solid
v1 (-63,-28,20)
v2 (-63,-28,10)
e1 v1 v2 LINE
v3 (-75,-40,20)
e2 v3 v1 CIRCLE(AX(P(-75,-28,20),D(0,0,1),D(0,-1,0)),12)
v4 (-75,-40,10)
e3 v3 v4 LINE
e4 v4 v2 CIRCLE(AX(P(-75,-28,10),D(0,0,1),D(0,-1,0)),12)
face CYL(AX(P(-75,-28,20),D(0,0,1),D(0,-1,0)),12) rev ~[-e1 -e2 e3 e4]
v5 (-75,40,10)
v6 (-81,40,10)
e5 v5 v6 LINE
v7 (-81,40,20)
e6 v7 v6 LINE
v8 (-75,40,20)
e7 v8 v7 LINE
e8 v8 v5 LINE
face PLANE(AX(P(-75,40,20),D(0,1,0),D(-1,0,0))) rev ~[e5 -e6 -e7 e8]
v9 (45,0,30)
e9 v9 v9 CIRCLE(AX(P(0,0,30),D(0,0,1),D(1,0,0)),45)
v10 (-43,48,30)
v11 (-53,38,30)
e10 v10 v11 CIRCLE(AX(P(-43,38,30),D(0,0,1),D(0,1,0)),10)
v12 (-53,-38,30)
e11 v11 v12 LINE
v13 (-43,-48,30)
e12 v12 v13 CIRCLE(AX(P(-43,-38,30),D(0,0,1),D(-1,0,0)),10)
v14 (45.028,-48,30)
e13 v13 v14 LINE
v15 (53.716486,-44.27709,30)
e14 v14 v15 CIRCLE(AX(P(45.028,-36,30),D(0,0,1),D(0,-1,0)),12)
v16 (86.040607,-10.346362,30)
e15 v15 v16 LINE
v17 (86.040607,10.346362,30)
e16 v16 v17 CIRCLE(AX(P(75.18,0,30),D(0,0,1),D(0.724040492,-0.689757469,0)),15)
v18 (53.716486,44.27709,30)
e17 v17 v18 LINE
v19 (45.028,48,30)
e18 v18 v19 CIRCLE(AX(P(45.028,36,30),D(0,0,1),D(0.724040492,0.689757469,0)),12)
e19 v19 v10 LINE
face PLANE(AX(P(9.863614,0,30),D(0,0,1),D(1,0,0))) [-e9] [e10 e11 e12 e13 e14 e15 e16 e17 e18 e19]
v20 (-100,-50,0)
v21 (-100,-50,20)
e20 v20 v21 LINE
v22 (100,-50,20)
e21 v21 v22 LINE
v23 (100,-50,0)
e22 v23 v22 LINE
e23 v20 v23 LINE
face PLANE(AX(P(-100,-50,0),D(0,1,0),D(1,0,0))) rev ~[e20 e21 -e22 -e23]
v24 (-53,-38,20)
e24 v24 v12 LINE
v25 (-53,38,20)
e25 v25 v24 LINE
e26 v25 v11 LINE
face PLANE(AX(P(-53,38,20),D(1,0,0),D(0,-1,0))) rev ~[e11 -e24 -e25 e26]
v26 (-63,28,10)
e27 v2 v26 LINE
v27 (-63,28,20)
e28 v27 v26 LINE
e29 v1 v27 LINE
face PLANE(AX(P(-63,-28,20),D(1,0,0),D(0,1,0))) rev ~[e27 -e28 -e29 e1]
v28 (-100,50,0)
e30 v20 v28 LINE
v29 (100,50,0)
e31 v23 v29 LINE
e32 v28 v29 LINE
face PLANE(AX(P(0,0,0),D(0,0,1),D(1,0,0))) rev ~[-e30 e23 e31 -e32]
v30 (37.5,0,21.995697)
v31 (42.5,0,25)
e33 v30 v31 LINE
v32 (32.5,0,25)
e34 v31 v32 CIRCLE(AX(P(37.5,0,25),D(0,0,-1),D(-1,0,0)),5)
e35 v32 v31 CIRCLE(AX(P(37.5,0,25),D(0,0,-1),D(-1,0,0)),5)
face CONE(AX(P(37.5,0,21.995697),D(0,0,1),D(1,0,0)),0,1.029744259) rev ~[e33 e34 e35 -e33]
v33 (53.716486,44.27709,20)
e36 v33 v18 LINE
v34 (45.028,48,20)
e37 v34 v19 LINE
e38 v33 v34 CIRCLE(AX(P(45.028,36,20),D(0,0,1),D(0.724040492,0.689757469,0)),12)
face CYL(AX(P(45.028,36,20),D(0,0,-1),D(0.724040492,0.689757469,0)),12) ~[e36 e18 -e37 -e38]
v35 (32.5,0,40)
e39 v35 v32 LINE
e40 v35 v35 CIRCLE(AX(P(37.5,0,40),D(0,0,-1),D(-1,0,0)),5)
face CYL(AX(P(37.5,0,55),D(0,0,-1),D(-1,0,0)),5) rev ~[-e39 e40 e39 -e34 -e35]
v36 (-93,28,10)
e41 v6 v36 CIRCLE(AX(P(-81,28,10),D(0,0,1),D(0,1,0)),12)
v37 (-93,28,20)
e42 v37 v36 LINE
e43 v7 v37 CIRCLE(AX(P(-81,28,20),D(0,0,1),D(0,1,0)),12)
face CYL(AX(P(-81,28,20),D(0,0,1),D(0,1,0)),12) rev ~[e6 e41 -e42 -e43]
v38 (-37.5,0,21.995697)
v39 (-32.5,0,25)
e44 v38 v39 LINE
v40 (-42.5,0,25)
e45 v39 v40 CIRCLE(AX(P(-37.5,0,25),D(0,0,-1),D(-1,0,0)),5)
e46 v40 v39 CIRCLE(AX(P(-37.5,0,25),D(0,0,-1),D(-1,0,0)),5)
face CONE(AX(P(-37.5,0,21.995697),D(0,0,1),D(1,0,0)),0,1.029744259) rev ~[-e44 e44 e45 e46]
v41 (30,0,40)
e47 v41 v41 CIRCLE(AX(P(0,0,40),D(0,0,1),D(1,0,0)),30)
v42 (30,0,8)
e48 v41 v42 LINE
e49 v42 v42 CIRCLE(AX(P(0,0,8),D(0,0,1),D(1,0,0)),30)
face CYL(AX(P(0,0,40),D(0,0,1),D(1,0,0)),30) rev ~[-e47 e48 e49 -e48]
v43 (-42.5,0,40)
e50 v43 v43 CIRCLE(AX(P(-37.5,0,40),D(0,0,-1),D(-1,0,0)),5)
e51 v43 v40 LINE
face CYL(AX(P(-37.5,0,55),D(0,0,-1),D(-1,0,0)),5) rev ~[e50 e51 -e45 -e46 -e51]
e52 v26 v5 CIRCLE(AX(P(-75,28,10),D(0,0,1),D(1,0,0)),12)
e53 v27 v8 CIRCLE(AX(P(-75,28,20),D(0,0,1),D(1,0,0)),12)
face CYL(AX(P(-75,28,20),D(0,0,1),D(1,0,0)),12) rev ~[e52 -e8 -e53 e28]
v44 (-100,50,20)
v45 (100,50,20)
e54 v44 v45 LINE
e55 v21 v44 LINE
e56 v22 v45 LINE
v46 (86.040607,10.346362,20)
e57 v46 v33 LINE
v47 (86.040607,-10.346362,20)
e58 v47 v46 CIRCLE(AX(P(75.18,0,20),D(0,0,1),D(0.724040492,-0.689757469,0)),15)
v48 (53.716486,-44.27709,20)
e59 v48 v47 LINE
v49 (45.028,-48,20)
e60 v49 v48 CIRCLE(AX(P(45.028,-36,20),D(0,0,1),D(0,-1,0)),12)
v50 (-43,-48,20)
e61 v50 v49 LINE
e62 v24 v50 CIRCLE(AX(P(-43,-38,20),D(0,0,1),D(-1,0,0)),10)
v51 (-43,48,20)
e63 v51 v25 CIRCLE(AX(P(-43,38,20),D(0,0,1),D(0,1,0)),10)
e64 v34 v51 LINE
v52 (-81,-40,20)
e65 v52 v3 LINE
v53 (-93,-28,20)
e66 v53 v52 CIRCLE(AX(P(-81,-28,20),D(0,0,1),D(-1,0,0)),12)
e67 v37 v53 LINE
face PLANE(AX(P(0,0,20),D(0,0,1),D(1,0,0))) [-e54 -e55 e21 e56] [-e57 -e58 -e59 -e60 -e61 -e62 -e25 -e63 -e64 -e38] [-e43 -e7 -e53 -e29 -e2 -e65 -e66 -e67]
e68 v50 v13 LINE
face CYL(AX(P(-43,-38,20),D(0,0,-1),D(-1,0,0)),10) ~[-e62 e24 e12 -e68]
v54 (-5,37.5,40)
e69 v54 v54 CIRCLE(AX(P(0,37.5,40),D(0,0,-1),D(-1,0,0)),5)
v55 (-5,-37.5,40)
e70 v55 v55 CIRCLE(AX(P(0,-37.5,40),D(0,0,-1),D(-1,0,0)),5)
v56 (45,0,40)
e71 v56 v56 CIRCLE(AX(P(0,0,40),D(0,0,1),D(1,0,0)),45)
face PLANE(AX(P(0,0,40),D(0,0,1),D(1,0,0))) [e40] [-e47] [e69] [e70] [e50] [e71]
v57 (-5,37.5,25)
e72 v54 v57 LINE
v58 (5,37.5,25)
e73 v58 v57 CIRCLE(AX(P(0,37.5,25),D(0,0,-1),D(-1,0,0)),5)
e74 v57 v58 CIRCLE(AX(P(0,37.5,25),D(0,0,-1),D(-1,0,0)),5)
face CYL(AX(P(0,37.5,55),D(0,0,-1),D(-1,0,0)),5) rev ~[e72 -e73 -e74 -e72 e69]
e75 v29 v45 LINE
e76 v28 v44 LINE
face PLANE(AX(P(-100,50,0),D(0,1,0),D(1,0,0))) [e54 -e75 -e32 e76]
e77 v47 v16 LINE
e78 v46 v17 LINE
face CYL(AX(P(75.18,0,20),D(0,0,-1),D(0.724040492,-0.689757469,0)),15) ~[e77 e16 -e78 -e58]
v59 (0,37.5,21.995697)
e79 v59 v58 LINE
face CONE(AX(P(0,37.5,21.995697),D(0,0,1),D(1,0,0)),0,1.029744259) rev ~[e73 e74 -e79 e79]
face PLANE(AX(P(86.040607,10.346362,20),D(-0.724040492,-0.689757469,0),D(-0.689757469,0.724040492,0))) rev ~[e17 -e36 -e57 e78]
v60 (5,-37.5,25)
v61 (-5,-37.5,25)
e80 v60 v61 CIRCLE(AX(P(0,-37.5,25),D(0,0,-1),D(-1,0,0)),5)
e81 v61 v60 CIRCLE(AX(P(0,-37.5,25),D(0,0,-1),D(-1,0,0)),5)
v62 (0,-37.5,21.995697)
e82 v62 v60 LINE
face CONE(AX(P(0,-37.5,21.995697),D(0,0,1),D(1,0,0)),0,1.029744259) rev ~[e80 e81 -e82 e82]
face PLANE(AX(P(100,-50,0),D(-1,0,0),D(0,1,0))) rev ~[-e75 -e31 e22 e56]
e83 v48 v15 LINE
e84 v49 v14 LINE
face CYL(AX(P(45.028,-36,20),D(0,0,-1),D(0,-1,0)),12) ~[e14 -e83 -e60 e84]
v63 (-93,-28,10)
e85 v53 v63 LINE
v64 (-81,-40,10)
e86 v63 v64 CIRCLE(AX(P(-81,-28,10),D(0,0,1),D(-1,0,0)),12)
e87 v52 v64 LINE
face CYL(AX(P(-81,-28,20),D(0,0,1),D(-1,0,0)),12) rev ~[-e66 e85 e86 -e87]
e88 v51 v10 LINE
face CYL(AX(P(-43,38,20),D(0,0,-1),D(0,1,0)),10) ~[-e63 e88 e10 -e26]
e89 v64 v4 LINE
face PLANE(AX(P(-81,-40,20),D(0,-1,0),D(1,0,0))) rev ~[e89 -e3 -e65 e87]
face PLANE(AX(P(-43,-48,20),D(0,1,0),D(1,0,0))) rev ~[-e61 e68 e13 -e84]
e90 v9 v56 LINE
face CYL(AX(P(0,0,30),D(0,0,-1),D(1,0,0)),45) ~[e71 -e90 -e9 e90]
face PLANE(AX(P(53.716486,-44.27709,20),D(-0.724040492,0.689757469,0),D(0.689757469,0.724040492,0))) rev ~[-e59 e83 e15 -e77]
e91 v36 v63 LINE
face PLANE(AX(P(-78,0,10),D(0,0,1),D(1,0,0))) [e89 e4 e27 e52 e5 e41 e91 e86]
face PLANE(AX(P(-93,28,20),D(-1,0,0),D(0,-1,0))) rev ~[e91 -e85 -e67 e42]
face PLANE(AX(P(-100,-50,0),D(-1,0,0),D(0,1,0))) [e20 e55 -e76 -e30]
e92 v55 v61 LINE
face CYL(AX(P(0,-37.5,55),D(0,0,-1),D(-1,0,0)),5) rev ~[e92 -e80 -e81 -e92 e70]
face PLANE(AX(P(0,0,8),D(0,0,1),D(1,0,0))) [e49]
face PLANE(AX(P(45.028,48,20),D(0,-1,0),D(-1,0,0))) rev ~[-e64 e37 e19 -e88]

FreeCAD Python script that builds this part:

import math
import FreeCAD as App
import Part
import Sketcher
Q = App.Units.Quantity

doc = App.newDocument("Part")
params = doc.addObject("Spreadsheet::Sheet", "Params")
for row, (alias, value) in enumerate([
    ("sketch1_width", "200 mm"),
    ("sketch1_height", "100 mm"),
    ("pad1_length", "20 mm"),
    ("sketch2_radius", "12 mm"),
    ("sketch2_width", "6 mm"),
    ("sketch2_height", "56 mm"),
    ("pocket1_length", "10 mm"),
    ("sketch3_radius", "10 mm"),
    ("sketch3_radius2", "12 mm"),
    ("sketch3_radius3", "15 mm"),
    ("sketch3_height", "76 mm"),
    ("pad2_length", "10 mm"),
    ("sketch4_diameter", "90 mm"),
    ("pad3_length", "10 mm"),
    ("sketch5_diameter", "60 mm"),
    ("pocket2_length", "32 mm"),
    ("sketch6_diameter", "10 mm"),
    ("hole_diameter", "10 mm"),
    ("hole_depth", "15 mm"),
], start=1):
    params.set(f"A{row}", alias)
    params.set(f"B{row}", "=" + value)
    params.setAlias(f"B{row}", alias)

body = doc.addObject("PartDesign::Body", "Body")

# Sketch on XY plane
sketch1 = body.newObject("Sketcher::SketchObject", "Sketch")
sketch1.AttachmentSupport = (doc.getObject("XY_Plane"), [""])
sketch1.MapMode = "FlatFace"
sketch1.addGeometry([
    Part.LineSegment(App.Vector(-100, 50, 0), App.Vector(-100, -50, 0)),
    Part.LineSegment(App.Vector(-100, -50, 0), App.Vector(100, -50, 0)),
    Part.LineSegment(App.Vector(100, -50, 0), App.Vector(100, 50, 0)),
    Part.LineSegment(App.Vector(100, 50, 0), App.Vector(-100, 50, 0)),
], False)
sketch1.addConstraint([
    Sketcher.Constraint("Coincident", 0, 2, 1, 1),
    Sketcher.Constraint("Coincident", 1, 2, 2, 1),
    Sketcher.Constraint("Coincident", 2, 2, 3, 1),
    Sketcher.Constraint("Coincident", 3, 2, 0, 1),
    Sketcher.Constraint("Vertical", 0),
    Sketcher.Constraint("Horizontal", 1),
    Sketcher.Constraint("Vertical", 2),
    Sketcher.Constraint("Horizontal", 3),
    Sketcher.Constraint("Symmetric", 0, 2, 2, 2, -1, 1),
    Sketcher.Constraint("DistanceX", 1, 1, 1, 2, Q("200 mm")),
    Sketcher.Constraint("DistanceY", 0, 2, 0, 1, Q("100 mm")),
])
sketch1.setExpression("Constraints[9]", "Params.sketch1_width")
sketch1.setExpression("Constraints[10]", "Params.sketch1_height")
pad1 = body.newObject("PartDesign::Pad", "Pad")
pad1.Profile = sketch1
pad1.setExpression("Length", "Params.pad1_length")

# Sketch on XY plane
sketch2 = body.newObject("Sketcher::SketchObject", "Sketch001")
sketch2.AttachmentSupport = (doc.getObject("XY_Plane"), [""])
sketch2.MapMode = "FlatFace"
sketch2.AttachmentOffset = App.Placement(App.Vector(0, 0, 20), App.Rotation())
sketch2.addGeometry([
    Part.LineSegment(App.Vector(-75, 40, 0), App.Vector(-81, 40, 0)),  # 0
    Part.ArcOfCircle(Part.Circle(App.Vector(-81, 28, 0), App.Vector(0, 0, 1), 12), math.radians(90), math.radians(180)),  # 1
    Part.LineSegment(App.Vector(-93, 28, 0), App.Vector(-93, -28, 0)),  # 2
    Part.ArcOfCircle(Part.Circle(App.Vector(-81, -28, 0), App.Vector(0, 0, 1), 12), math.radians(180), math.radians(270)),  # 3
    Part.LineSegment(App.Vector(-81, -40, 0), App.Vector(-75, -40, 0)),  # 4
    Part.ArcOfCircle(Part.Circle(App.Vector(-75, -28, 0), App.Vector(0, 0, 1), 12), math.radians(-90), math.radians(0)),  # 5
    Part.LineSegment(App.Vector(-63, -28, 0), App.Vector(-63, 28, 0)),  # 6
    Part.ArcOfCircle(Part.Circle(App.Vector(-75, 28, 0), App.Vector(0, 0, 1), 12), math.radians(0), math.radians(90)),  # 7
], False)
sketch2.addConstraint([
    Sketcher.Constraint("Tangent", 0, 2, 1, 1),
    Sketcher.Constraint("Tangent", 1, 2, 2, 1),
    Sketcher.Constraint("Tangent", 2, 2, 3, 1),
    Sketcher.Constraint("Tangent", 3, 2, 4, 1),
    Sketcher.Constraint("Tangent", 4, 2, 5, 1),
    Sketcher.Constraint("Tangent", 5, 2, 6, 1),
    Sketcher.Constraint("Tangent", 6, 2, 7, 1),
    Sketcher.Constraint("Tangent", 7, 2, 0, 1),
    Sketcher.Constraint("Horizontal", 0),
    Sketcher.Constraint("Vertical", 2),
    Sketcher.Constraint("Horizontal", 4),
    Sketcher.Constraint("Vertical", 6),
    Sketcher.Constraint("Equal", 1, 3),
    Sketcher.Constraint("Equal", 3, 5),
    Sketcher.Constraint("Equal", 5, 7),
    Sketcher.Constraint("Radius", 1, Q("12 mm")),
    Sketcher.Constraint("DistanceX", 0, 2, 0, 1, Q("6 mm")),
    Sketcher.Constraint("DistanceY", 2, 2, 2, 1, Q("56 mm")),
    Sketcher.Constraint("DistanceX", 1, 3, -1, 1, Q("81 mm")),
    Sketcher.Constraint("DistanceY", -1, 1, 1, 3, Q("28 mm")),
])
sketch2.setExpression("Constraints[15]", "Params.sketch2_radius")
sketch2.setExpression("Constraints[16]", "Params.sketch2_width")
sketch2.setExpression("Constraints[17]", "Params.sketch2_height")
pocket1 = body.newObject("PartDesign::Pocket", "Pocket")
pocket1.Profile = sketch2
pocket1.setExpression("Length", "Params.pocket1_length")

# Sketch on XY plane
sketch3 = body.newObject("Sketcher::SketchObject", "Sketch002")
sketch3.AttachmentSupport = (doc.getObject("XY_Plane"), [""])
sketch3.MapMode = "FlatFace"
sketch3.AttachmentOffset = App.Placement(App.Vector(0, 0, 20), App.Rotation())
sketch3.addGeometry([
    Part.LineSegment(App.Vector(45, 48, 0), App.Vector(-43, 48, 0)),  # 0
    Part.ArcOfCircle(Part.Circle(App.Vector(-43, 38, 0), App.Vector(0, 0, 1), 10), math.radians(90), math.radians(180)),  # 1
    Part.LineSegment(App.Vector(-53, 38, 0), App.Vector(-53, -38, 0)),  # 2
    Part.ArcOfCircle(Part.Circle(App.Vector(-43, -38, 0), App.Vector(0, 0, 1), 10), math.radians(180), math.radians(270)),  # 3
    Part.LineSegment(App.Vector(-43, -48, 0), App.Vector(45, -48, 0)),  # 4
    Part.ArcOfCircle(Part.Circle(App.Vector(45, -36, 0), App.Vector(0, 0, 1), 12), math.radians(-90), math.radians(-44)),  # 5
    Part.LineSegment(App.Vector(54, -44, 0), App.Vector(86, -10, 0)),  # 6
    Part.ArcOfCircle(Part.Circle(App.Vector(75, 0, 0), App.Vector(0, 0, 1), 15), math.radians(-44), math.radians(44)),  # 7
    Part.LineSegment(App.Vector(86, 10, 0), App.Vector(54, 44, 0)),  # 8
    Part.ArcOfCircle(Part.Circle(App.Vector(45, 36, 0), App.Vector(0, 0, 1), 12), math.radians(44), math.radians(90)),  # 9
], False)
sketch3.addConstraint([
    Sketcher.Constraint("Tangent", 0, 2, 1, 1),
    Sketcher.Constraint("Tangent", 1, 2, 2, 1),
    Sketcher.Constraint("Tangent", 2, 2, 3, 1),
    Sketcher.Constraint("Tangent", 3, 2, 4, 1),
    Sketcher.Constraint("Tangent", 4, 2, 5, 1),
    Sketcher.Constraint("Tangent", 5, 2, 6, 1),
    Sketcher.Constraint("Tangent", 6, 2, 7, 1),
    Sketcher.Constraint("Tangent", 7, 2, 8, 1),
    Sketcher.Constraint("Tangent", 8, 2, 9, 1),
    Sketcher.Constraint("Tangent", 9, 2, 0, 1),
    Sketcher.Constraint("Horizontal", 0),
    Sketcher.Constraint("Vertical", 2),
    Sketcher.Constraint("Horizontal", 4),
    Sketcher.Constraint("Equal", 1, 3),
    Sketcher.Constraint("Equal", 5, 9),
    Sketcher.Constraint("Symmetric", 5, 3, 9, 3, -1),
    Sketcher.Constraint("PointOnObject", 7, 3, -1),
    Sketcher.Constraint("Radius", 1, Q("10 mm")),
    Sketcher.Constraint("Radius", 5, Q("12 mm")),
    Sketcher.Constraint("Radius", 7, Q("15 mm")),
    Sketcher.Constraint("DistanceY", 2, 2, 2, 1, Q("76 mm")),
    Sketcher.Constraint("DistanceX", 1, 3, -1, 1, Q("43 mm")),
    Sketcher.Constraint("DistanceX", 0, 2, 0, 1, Q("88.028 mm")),
    Sketcher.Constraint("DistanceX", -1, 1, 7, 3, Q("75.18 mm")),
])
sketch3.setExpression("Constraints[17]", "Params.sketch3_radius")
sketch3.setExpression("Constraints[18]", "Params.sketch3_radius2")
sketch3.setExpression("Constraints[19]", "Params.sketch3_radius3")
sketch3.setExpression("Constraints[20]", "Params.sketch3_height")
pad2 = body.newObject("PartDesign::Pad", "Pad001")
pad2.Profile = sketch3
pad2.setExpression("Length", "Params.pad2_length")

# Sketch on XY plane
sketch4 = body.newObject("Sketcher::SketchObject", "Sketch003")
sketch4.AttachmentSupport = (doc.getObject("XY_Plane"), [""])
sketch4.MapMode = "FlatFace"
sketch4.AttachmentOffset = App.Placement(App.Vector(0, 0, 30), App.Rotation())
sketch4.addGeometry(Part.Circle(App.Vector(0, 0, 0), App.Vector(0, 0, 1), 45), False)
sketch4.addConstraint([
    Sketcher.Constraint("Coincident", 0, 3, -1, 1),
    Sketcher.Constraint("Diameter", 0, Q("90 mm")),
])
sketch4.setExpression("Constraints[1]", "Params.sketch4_diameter")
pad3 = body.newObject("PartDesign::Pad", "Pad002")
pad3.Profile = sketch4
pad3.setExpression("Length", "Params.pad3_length")

# Sketch on XY plane
sketch5 = body.newObject("Sketcher::SketchObject", "Sketch004")
sketch5.AttachmentSupport = (doc.getObject("XY_Plane"), [""])
sketch5.MapMode = "FlatFace"
sketch5.AttachmentOffset = App.Placement(App.Vector(0, 0, 40), App.Rotation())
sketch5.addGeometry(Part.Circle(App.Vector(0, 0, 0), App.Vector(0, 0, 1), 30), False)
sketch5.addConstraint([
    Sketcher.Constraint("Coincident", 0, 3, -1, 1),
    Sketcher.Constraint("Diameter", 0, Q("60 mm")),
])
sketch5.setExpression("Constraints[1]", "Params.sketch5_diameter")
pocket2 = body.newObject("PartDesign::Pocket", "Pocket001")
pocket2.Profile = sketch5
pocket2.setExpression("Length", "Params.pocket2_length")

# Sketch on XY plane
sketch6 = body.newObject("Sketcher::SketchObject", "Sketch005")
sketch6.AttachmentSupport = (doc.getObject("XY_Plane"), [""])
sketch6.MapMode = "FlatFace"
sketch6.AttachmentOffset = App.Placement(App.Vector(0, 0, 40), App.Rotation())
sketch6.addGeometry([
    Part.Circle(App.Vector(-38, 0, 0), App.Vector(0, 0, 1), 5),
    Part.Circle(App.Vector(0, 38, 0), App.Vector(0, 0, 1), 5),
    Part.Circle(App.Vector(38, 0, 0), App.Vector(0, 0, 1), 5),
    Part.Circle(App.Vector(0, -38, 0), App.Vector(0, 0, 1), 5),
], False)
sketch6.addConstraint([
    Sketcher.Constraint("Equal", 0, 1),
    Sketcher.Constraint("Equal", 1, 2),
    Sketcher.Constraint("Equal", 2, 3),
    Sketcher.Constraint("Symmetric", 0, 3, 2, 3, -1, 1),
    Sketcher.Constraint("Symmetric", 1, 3, 3, 3, -1, 1),
    Sketcher.Constraint("PointOnObject", 0, 3, -1),
    Sketcher.Constraint("PointOnObject", 1, 3, -2),
    Sketcher.Constraint("Diameter", 0, Q("10 mm")),
    Sketcher.Constraint("DistanceX", 0, 3, 2, 3, Q("75 mm")),
    Sketcher.Constraint("DistanceY", 3, 3, 1, 3, Q("75 mm")),
])
sketch6.setExpression("Constraints[7]", "Params.sketch6_diameter")
doc.recompute()
hole = body.newObject("PartDesign::Hole", "Hole")
hole.Profile = sketch6
hole.ThreadType = "None"
hole.setExpression("Diameter", "Params.hole_diameter")
hole.DepthType = "Dimension"
hole.setExpression("Depth", "Params.hole_depth")
hole.DrillPoint = "Angled"
hole.DrillPointAngle = 118

doc.recompute()
